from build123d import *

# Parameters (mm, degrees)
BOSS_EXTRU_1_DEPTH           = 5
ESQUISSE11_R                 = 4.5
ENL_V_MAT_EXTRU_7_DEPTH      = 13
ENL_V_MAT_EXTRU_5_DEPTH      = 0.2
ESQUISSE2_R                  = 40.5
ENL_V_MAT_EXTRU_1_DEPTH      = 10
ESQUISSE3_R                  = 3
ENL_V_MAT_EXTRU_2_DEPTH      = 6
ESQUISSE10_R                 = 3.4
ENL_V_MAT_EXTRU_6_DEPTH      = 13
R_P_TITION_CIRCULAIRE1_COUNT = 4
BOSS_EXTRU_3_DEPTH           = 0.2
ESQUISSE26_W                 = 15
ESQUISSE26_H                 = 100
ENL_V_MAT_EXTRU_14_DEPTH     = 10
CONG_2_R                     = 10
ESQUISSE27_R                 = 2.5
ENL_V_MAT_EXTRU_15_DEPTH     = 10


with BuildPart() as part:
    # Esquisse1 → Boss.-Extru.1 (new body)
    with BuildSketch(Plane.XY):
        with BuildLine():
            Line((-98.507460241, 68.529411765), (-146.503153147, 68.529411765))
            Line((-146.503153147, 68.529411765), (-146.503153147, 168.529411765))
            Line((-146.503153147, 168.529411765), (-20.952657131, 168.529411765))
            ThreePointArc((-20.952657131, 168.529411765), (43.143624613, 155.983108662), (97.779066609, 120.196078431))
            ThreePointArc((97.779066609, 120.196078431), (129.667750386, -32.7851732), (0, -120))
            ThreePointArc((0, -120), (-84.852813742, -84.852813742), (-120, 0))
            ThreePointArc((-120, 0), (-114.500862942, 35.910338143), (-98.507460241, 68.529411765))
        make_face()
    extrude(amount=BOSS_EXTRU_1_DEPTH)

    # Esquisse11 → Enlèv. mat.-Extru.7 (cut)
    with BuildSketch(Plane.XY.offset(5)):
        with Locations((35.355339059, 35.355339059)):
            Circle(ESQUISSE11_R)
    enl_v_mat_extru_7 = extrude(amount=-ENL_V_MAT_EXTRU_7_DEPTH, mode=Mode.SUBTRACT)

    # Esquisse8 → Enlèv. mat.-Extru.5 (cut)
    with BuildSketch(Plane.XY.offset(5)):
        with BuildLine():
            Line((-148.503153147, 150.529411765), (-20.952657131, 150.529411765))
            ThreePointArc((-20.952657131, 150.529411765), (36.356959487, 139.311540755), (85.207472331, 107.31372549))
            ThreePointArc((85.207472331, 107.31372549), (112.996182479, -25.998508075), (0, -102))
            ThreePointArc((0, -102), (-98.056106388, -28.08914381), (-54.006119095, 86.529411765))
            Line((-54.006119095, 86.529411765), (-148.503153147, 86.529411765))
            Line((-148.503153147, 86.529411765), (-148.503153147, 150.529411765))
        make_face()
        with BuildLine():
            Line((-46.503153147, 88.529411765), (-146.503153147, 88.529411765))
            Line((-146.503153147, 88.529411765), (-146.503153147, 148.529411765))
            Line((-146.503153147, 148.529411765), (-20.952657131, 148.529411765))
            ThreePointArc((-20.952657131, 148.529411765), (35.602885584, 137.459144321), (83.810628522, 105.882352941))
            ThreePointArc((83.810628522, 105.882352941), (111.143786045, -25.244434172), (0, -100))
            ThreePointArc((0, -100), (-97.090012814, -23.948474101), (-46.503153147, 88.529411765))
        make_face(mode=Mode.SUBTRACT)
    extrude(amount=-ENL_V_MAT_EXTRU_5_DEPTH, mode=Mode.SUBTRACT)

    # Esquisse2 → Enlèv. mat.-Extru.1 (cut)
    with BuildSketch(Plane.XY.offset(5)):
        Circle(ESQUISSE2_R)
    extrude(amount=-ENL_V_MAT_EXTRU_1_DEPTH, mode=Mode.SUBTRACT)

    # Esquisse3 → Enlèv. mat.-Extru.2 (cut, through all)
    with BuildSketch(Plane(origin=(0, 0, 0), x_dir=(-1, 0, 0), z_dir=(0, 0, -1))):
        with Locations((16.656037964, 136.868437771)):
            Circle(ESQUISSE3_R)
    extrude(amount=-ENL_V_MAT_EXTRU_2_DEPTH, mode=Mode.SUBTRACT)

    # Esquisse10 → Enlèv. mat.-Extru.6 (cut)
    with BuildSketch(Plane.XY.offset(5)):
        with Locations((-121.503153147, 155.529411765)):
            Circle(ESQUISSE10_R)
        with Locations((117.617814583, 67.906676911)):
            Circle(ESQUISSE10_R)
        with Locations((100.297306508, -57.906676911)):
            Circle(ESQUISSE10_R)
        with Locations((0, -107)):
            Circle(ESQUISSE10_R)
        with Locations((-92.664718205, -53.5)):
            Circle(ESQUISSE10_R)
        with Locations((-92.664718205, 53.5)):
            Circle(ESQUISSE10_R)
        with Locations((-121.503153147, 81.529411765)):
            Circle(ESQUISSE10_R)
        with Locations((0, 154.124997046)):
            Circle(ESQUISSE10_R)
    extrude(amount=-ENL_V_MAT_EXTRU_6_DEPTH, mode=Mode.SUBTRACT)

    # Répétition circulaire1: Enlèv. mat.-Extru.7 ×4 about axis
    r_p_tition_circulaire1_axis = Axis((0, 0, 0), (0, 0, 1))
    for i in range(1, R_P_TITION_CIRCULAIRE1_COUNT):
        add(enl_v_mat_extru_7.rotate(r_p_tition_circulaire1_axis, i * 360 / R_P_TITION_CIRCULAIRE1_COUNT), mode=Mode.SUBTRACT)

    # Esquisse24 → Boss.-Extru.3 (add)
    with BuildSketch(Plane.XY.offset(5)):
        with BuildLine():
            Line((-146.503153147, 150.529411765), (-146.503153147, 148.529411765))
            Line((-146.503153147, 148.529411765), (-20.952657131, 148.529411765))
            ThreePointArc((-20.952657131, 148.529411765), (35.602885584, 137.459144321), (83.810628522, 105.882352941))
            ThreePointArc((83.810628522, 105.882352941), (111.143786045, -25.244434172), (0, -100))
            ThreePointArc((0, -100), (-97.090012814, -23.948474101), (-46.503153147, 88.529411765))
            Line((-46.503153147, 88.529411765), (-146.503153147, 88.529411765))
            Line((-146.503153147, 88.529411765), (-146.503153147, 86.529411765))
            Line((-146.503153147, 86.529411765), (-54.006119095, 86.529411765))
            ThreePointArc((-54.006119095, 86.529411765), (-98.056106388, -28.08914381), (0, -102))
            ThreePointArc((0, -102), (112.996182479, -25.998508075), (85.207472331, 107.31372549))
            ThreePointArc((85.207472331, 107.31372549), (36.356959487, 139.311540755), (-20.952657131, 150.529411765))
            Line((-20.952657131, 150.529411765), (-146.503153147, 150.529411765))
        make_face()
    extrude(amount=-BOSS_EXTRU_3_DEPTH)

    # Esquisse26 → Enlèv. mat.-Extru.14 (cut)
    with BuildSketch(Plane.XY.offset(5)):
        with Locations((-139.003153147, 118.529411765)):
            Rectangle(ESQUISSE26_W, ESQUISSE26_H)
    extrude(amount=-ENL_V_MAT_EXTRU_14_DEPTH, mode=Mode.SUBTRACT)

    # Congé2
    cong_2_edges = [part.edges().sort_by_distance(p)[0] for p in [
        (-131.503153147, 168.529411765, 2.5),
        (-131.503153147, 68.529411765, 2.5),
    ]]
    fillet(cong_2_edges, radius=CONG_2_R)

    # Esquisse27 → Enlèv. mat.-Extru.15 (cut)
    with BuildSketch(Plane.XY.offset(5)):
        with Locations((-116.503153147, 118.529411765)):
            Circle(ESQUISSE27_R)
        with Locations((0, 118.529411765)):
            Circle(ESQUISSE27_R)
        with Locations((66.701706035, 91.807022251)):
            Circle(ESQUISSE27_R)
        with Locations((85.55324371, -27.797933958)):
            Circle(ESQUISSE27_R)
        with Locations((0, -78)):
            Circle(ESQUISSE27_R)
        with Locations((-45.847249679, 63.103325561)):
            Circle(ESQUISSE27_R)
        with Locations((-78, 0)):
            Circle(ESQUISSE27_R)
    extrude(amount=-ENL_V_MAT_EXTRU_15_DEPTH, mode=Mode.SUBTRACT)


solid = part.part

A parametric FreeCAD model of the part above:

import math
import FreeCAD as App
import Part
import Sketcher

V = App.Vector


def edges_at(feature, points):
    """Names of the edges that pass closest to the given points."""
    edges = feature.Shape.Edges
    near = lambda p: min(range(len(edges)), key=lambda i: edges[i].distToShape(Part.Vertex(*p))[0])
    return sorted({f"Edge{near(p) + 1}" for p in points})


def add_polygon(sketch, points):
    """Adds a closed chain of lines whose ends are joined by coincident constraints."""
    first, n = sketch.GeometryCount, len(points)
    for a, b in zip(points, points[1:] + points[:1]):
        sketch.addGeometry(Part.LineSegment(App.Vector(*a, 0), App.Vector(*b, 0)), False)
    for i in range(n):
        sketch.addConstraint(Sketcher.Constraint("Coincident", first + i, 2, first + (i + 1) % n, 1))

doc = App.newDocument("Part")
body = doc.addObject("PartDesign::Body", "Body")

# Sketch on XY plane
sketch1 = doc.addObject("Sketcher::SketchObject", "Sketch")
body.addObject(sketch1)
sketch1.AttachmentSupport = (doc.XY_Plane, [""])
sketch1.MapMode = "FlatFace"
sketch1.addGeometry([
    Part.LineSegment(V(-146.503153, 68.529412, 0), V(-98.50746, 68.529412, 0)),  # 0
    Part.ArcOfCircle(Part.Circle(V(0, 0, 0), V(0, 0, 1), 120), math.radians(145.174538), math.radians(180)),  # 1
    Part.ArcOfCircle(Part.Circle(V(0, 0, 0), V(0, 0, 1), 120), math.radians(-180), math.radians(-90)),  # 2
    Part.ArcOfCircle(Part.Circle(V(0, 20, 0), V(0, 0, 1), 140), math.radians(-90), math.radians(45.69947)),  # 3
    Part.ArcOfCircle(Part.Circle(V(-20.952657, -1.470588, 0), V(0, 0, 1), 170), math.radians(45.69947), math.radians(90)),  # 4
    Part.LineSegment(V(-20.952657, 168.529412, 0), V(-146.503153, 168.529412, 0)),  # 5
    Part.LineSegment(V(-146.503153, 168.529412, 0), V(-146.503153, 68.529412, 0)),  # 6
], False)
sketch1.addConstraint([
    Sketcher.Constraint("Coincident", 0, 2, 1, 1),
    Sketcher.Constraint("Tangent", 1, 2, 2, 1),
    Sketcher.Constraint("Tangent", 2, 2, 3, 1),
    Sketcher.Constraint("Tangent", 3, 2, 4, 1),
    Sketcher.Constraint("Tangent", 4, 2, 5, 1),
    Sketcher.Constraint("Coincident", 5, 2, 6, 1),
    Sketcher.Constraint("Coincident", 6, 2, 0, 1),
    Sketcher.Constraint("Horizontal", 0),
    Sketcher.Constraint("Horizontal", 5),
    Sketcher.Constraint("Vertical", 6),
    Sketcher.Constraint("Coincident", 1, 3, -1, 1),
    Sketcher.Constraint("Equal", 1, 2),
    Sketcher.Constraint("PointOnObject", 3, 3, -2),
    Sketcher.Constraint("PointOnObject", 1, 2, -1),
    Sketcher.Constraint("Radius", 1, 120.0),
    Sketcher.Constraint("Radius", 3, 140.0),
    Sketcher.Constraint("Radius", 4, 170.0),
    Sketcher.Constraint("DistanceY", 6, 2, 6, 1, 100.0),
    Sketcher.Constraint("DistanceX", 0, 1, 0, 2, 47.995693),
    Sketcher.Constraint("DistanceX", 5, 2, 5, 1, 125.550496),
])
pad1 = doc.addObject("PartDesign::Pad", "Pad")
body.addObject(pad1)
pad1.Profile = sketch1
pad1.Length = 5

# Sketch on XY plane
sketch2 = doc.addObject("Sketcher::SketchObject", "Sketch001")
body.addObject(sketch2)
sketch2.AttachmentSupport = (doc.XY_Plane, [""])
sketch2.MapMode = "FlatFace"
sketch2.AttachmentOffset = App.Placement(V(0, 0, 5), App.Rotation())
sketch2.addGeometry(Part.Circle(V(35.355339, 35.355339, 0), V(0, 0, 1), 4.5), False)
sketch2.addConstraint([
    Sketcher.Constraint("Diameter", 0, 9.0),
    Sketcher.Constraint("DistanceX", -1, 1, 0, 3, 35.355339),
    Sketcher.Constraint("DistanceY", -1, 1, 0, 3, 35.355339),
])
pocket1 = doc.addObject("PartDesign::Pocket", "Pocket")
body.addObject(pocket1)
pocket1.Profile = sketch2
pocket1.Length = 13

# Sketch on XY plane
sketch3 = doc.addObject("Sketcher::SketchObject", "Sketch002")
body.addObject(sketch3)
sketch3.AttachmentSupport = (doc.XY_Plane, [""])
sketch3.MapMode = "FlatFace"
sketch3.AttachmentOffset = App.Placement(V(0, 0, 5), App.Rotation())
sketch3.addGeometry([
    Part.LineSegment(V(-20.952657, 150.529412, 0), V(-148.503153, 150.529412, 0)),  # 0
    Part.LineSegment(V(-148.503153, 150.529412, 0), V(-148.503153, 86.529412, 0)),  # 1
    Part.LineSegment(V(-148.503153, 86.529412, 0), V(-54.006119, 86.529412, 0)),  # 2
    Part.ArcOfCircle(Part.Circle(V(0, 0, 0), V(0, 0, 1), 102), math.radians(121.96977), math.radians(270)),  # 3
    Part.ArcOfCircle(Part.Circle(V(0, 20, 0), V(0, 0, 1), 122), math.radians(-90), math.radians(45.69947)),  # 4
    Part.ArcOfCircle(Part.Circle(V(-20.952657, -1.470588, 0), V(0, 0, 1), 152), math.radians(45.69947), math.radians(90)),  # 5
    Part.LineSegment(V(-46.503153, 88.529412, 0), V(-146.503153, 88.529412, 0)),  # 6
    Part.LineSegment(V(-146.503153, 88.529412, 0), V(-146.503153, 148.529412, 0)),  # 7
    Part.LineSegment(V(-146.503153, 148.529412, 0), V(-20.952657, 148.529412, 0)),  # 8
    Part.ArcOfCircle(Part.Circle(V(-20.952657, -1.470588, 0), V(0, 0, 1), 150), math.radians(45.69947), math.radians(90)),  # 9
    Part.ArcOfCircle(Part.Circle(V(0, 20, 0), V(0, 0, 1), 120), math.radians(-90), math.radians(45.69947)),  # 10
    Part.ArcOfCircle(Part.Circle(V(0, 0, 0), V(0, 0, 1), 100), math.radians(117.712263), math.radians(270)),  # 11
], False)
sketch3.addConstraint([
    Sketcher.Constraint("Coincident", 0, 2, 1, 1),
    Sketcher.Constraint("Coincident", 1, 2, 2, 1),
    Sketcher.Constraint("Coincident", 2, 2, 3, 1),
    Sketcher.Constraint("Tangent", 3, 2, 4, 1),
    Sketcher.Constraint("Tangent", 4, 2, 5, 1),
    Sketcher.Constraint("Tangent", 5, 2, 0, 1),
    Sketcher.Constraint("Coincident", 6, 2, 7, 1),
    Sketcher.Constraint("Coincident", 7, 2, 8, 1),
    Sketcher.Constraint("Tangent", 8, 2, 9, 2),
    Sketcher.Constraint("Tangent", 9, 1, 10, 2),
    Sketcher.Constraint("Tangent", 10, 1, 11, 2),
    Sketcher.Constraint("Coincident", 11, 1, 6, 1),
    Sketcher.Constraint("Horizontal", 0),
    Sketcher.Constraint("Vertical", 1),
    Sketcher.Constraint("Horizontal", 2),
    Sketcher.Constraint("Horizontal", 6),
    Sketcher.Constraint("Vertical", 7),
    Sketcher.Constraint("Horizontal", 8),
    Sketcher.Constraint("Coincident", 3, 3, -1, 1),
    Sketcher.Constraint("Coincident", 11, 3, -1, 1),
    Sketcher.Constraint("Coincident", 9, 3, 5, 3),
    Sketcher.Constraint("Coincident", 10, 3, 4, 3),
    Sketcher.Constraint("PointOnObject", 4, 3, -2),
    Sketcher.Constraint("Radius", 3, 102.0),
    Sketcher.Constraint("Radius", 4, 122.0),
    Sketcher.Constraint("Radius", 5, 152.0),
    Sketcher.Constraint("Radius", 9, 150.0),
    Sketcher.Constraint("DistanceX", 6, 2, 6, 1, 100.0),
    Sketcher.Constraint("DistanceY", 1, 2, 1, 1, 64.0),
    Sketcher.Constraint("DistanceY", 7, 1, 7, 2, 60.0),
    Sketcher.Constraint("DistanceX", 1, 2, 6, 2, 2.0),
    Sketcher.Constraint("DistanceX", 0, 2, 0, 1, 127.550496),
])
pocket2 = doc.addObject("PartDesign::Pocket", "Pocket001")
body.addObject(pocket2)
pocket2.Profile = sketch3
pocket2.Length = 0.2

# Sketch on XY plane
sketch4 = doc.addObject("Sketcher::SketchObject", "Sketch003")
body.addObject(sketch4)
sketch4.AttachmentSupport = (doc.XY_Plane, [""])
sketch4.MapMode = "FlatFace"
sketch4.AttachmentOffset = App.Placement(V(0, 0, 5), App.Rotation())
sketch4.addGeometry(Part.Circle(V(0, 0, 0), V(0, 0, 1), 40.5), False)
sketch4.addConstraint([
    Sketcher.Constraint("Coincident", 0, 3, -1, 1),
    Sketcher.Constraint("Diameter", 0, 81.0),
])
pocket3 = doc.addObject("PartDesign::Pocket", "Pocket002")
body.addObject(pocket3)
pocket3.Profile = sketch4
pocket3.Length = 10

# Sketch on XY plane
sketch5 = doc.addObject("Sketcher::SketchObject", "Sketch004")
body.addObject(sketch5)
sketch5.AttachmentSupport = (doc.XY_Plane, [""])
sketch5.MapMode = "FlatFace"
sketch5.addGeometry(Part.Circle(V(-16.656038, 136.868438, 0), V(0, 0, 1), 3), False)
sketch5.addConstraint([
    Sketcher.Constraint("Diameter", 0, 6.0),
    Sketcher.Constraint("DistanceX", 0, 3, -1, 1, 16.656038),
    Sketcher.Constraint("DistanceY", -1, 1, 0, 3, 136.868438),
])
pocket4 = doc.addObject("PartDesign::Pocket", "Pocket003")
body.addObject(pocket4)
pocket4.Profile = sketch5
pocket4.Type = "ThroughAll"
pocket4.Reversed = True

# Sketch on XY plane
sketch6 = doc.addObject("Sketcher::SketchObject", "Sketch005")
body.addObject(sketch6)
sketch6.AttachmentSupport = (doc.XY_Plane, [""])
sketch6.MapMode = "FlatFace"
sketch6.AttachmentOffset = App.Placement(V(0, 0, 5), App.Rotation())
sketch6.addGeometry([
    Part.Circle(V(-121.503153, 155.529412, 0), V(0, 0, 1), 3.4),  # 0
    Part.Circle(V(117.617815, 67.906677, 0), V(0, 0, 1), 3.4),  # 1
    Part.Circle(V(100.297307, -57.906677, 0), V(0, 0, 1), 3.4),  # 2
    Part.Circle(V(0, -107, 0), V(0, 0, 1), 3.4),  # 3
    Part.Circle(V(-92.664718, -53.5, 0), V(0, 0, 1), 3.4),  # 4
    Part.Circle(V(-92.664718, 53.5, 0), V(0, 0, 1), 3.4),  # 5
    Part.Circle(V(-121.503153, 81.529412, 0), V(0, 0, 1), 3.4),  # 6
    Part.Circle(V(0, 154.124997, 0), V(0, 0, 1), 3.4),  # 7
], False)
sketch6.addConstraint([
    Sketcher.Constraint("Equal", 0, 1),
    Sketcher.Constraint("Equal", 1, 2),
    Sketcher.Constraint("Equal", 2, 3),
    Sketcher.Constraint("Equal", 3, 4),
    Sketcher.Constraint("Equal", 4, 5),
    Sketcher.Constraint("Equal", 5, 6),
    Sketcher.Constraint("Equal", 6, 7),
    Sketcher.Constraint("Symmetric", 4, 3, 5, 3, -1),
    Sketcher.Constraint("PointOnObject", 3, 3, -2),
    Sketcher.Constraint("PointOnObject", 7, 3, -2),
    Sketcher.Constraint("Vertical", 0, 3, 6, 3),
    Sketcher.Constraint("Diameter", 0, 6.8),
    Sketcher.Constraint("DistanceY", 3, 3, -1, 1, 107.0),
    Sketcher.Constraint("DistanceY", 4, 3, 5, 3, 107.0),
    Sketcher.Constraint("DistanceY", 6, 3, 0, 3, 74.0),
    Sketcher.Constraint("DistanceY", -1, 1, 0, 3, 155.529412),
    Sketcher.Constraint("DistanceX", 4, 3, -1, 1, 92.664718),
    Sketcher.Constraint("DistanceX", 2, 3, 1, 3, 17.320508),
    Sketcher.Constraint("DistanceX", 0, 3, 2, 3, 221.80046),
    Sketcher.Constraint("DistanceY", 2, 3, 0, 3, 213.436089),
    Sketcher.Constraint("DistanceY", 1, 3, 7, 3, 86.21832),
    Sketcher.Constraint("DistanceX", 0, 3, -1, 1, 121.503153),
    Sketcher.Constraint("DistanceY", -1, 1, 1, 3, 67.906677),
])
pocket5 = doc.addObject("PartDesign::Pocket", "Pocket004")
body.addObject(pocket5)
pocket5.Profile = sketch6
pocket5.Length = 13
doc.recompute()

polarpattern = doc.addObject("PartDesign::PolarPattern", "PolarPattern")
body.addObject(polarpattern)
polarpattern.Originals = [pocket1]
polarpattern.Axis = (doc.Z_Axis, [""])
polarpattern.Angle = 360
polarpattern.Occurrences = 4
body.Tip = polarpattern

# Sketch on XY plane
sketch7 = doc.addObject("Sketcher::SketchObject", "Sketch006")
body.addObject(sketch7)
sketch7.AttachmentSupport = (doc.XY_Plane, [""])
sketch7.MapMode = "FlatFace"
sketch7.AttachmentOffset = App.Placement(V(0, 0, 5), App.Rotation())
sketch7.addGeometry([
    Part.LineSegment(V(-146.503153, 150.529412, 0), V(-146.503153, 148.529412, 0)),  # 0
    Part.LineSegment(V(-146.503153, 148.529412, 0), V(-20.952657, 148.529412, 0)),  # 1
    Part.ArcOfCircle(Part.Circle(V(-20.952657, -1.470588, 0), V(0, 0, 1), 150), math.radians(45.69947), math.radians(90)),  # 2
    Part.ArcOfCircle(Part.Circle(V(0, 20, 0), V(0, 0, 1), 120), math.radians(-90), math.radians(45.69947)),  # 3
    Part.ArcOfCircle(Part.Circle(V(0, 0, 0), V(0, 0, 1), 100), math.radians(117.712263), math.radians(270)),  # 4
    Part.LineSegment(V(-46.503153, 88.529412, 0), V(-146.503153, 88.529412, 0)),  # 5
    Part.LineSegment(V(-146.503153, 88.529412, 0), V(-146.503153, 86.529412, 0)),  # 6
    Part.LineSegment(V(-146.503153, 86.529412, 0), V(-54.006119, 86.529412, 0)),  # 7
    Part.ArcOfCircle(Part.Circle(V(0, 0, 0), V(0, 0, 1), 102), math.radians(121.96977), math.radians(270)),  # 8
    Part.ArcOfCircle(Part.Circle(V(0, 20, 0), V(0, 0, 1), 122), math.radians(-90), math.radians(45.69947)),  # 9
    Part.ArcOfCircle(Part.Circle(V(-20.952657, -1.470588, 0), V(0, 0, 1), 152), math.radians(45.69947), math.radians(90)),  # 10
    Part.LineSegment(V(-20.952657, 150.529412, 0), V(-146.503153, 150.529412, 0)),  # 11
], False)
sketch7.addConstraint([
    Sketcher.Constraint("Coincident", 0, 2, 1, 1),
    Sketcher.Constraint("Tangent", 1, 2, 2, 2),
    Sketcher.Constraint("Tangent", 2, 1, 3, 2),
    Sketcher.Constraint("Tangent", 3, 1, 4, 2),
    Sketcher.Constraint("Coincident", 4, 1, 5, 1),
    Sketcher.Constraint("Coincident", 5, 2, 6, 1),
    Sketcher.Constraint("Coincident", 6, 2, 7, 1),
    Sketcher.Constraint("Coincident", 7, 2, 8, 1),
    Sketcher.Constraint("Tangent", 8, 2, 9, 1),
    Sketcher.Constraint("Tangent", 9, 2, 10, 1),
    Sketcher.Constraint("Tangent", 10, 2, 11, 1),
    Sketcher.Constraint("Coincident", 11, 2, 0, 1),
    Sketcher.Constraint("Vertical", 0),
    Sketcher.Constraint("Horizontal", 1),
    Sketcher.Constraint("Horizontal", 5),
    Sketcher.Constraint("Vertical", 6),
    Sketcher.Constraint("Horizontal", 7),
    Sketcher.Constraint("Horizontal", 11),
    Sketcher.Constraint("Coincident", 4, 3, -1, 1),
    Sketcher.Constraint("Coincident", 8, 3, -1, 1),
    Sketcher.Constraint("Coincident", 9, 3, 3, 3),
    Sketcher.Constraint("Coincident", 10, 3, 2, 3),
    Sketcher.Constraint("PointOnObject", 3, 3, -2),
    Sketcher.Constraint("Vertical", 0, 2, 5, 2),
    Sketcher.Constraint("Equal", 0, 6),
    Sketcher.Constraint("Radius", 2, 150.0),
    Sketcher.Constraint("Radius", 3, 120.0),
    Sketcher.Constraint("Radius", 4, 100.0),
    Sketcher.Constraint("Radius", 8, 102.0),
    Sketcher.Constraint("DistanceX", 5, 2, 5, 1, 100.0),
    Sketcher.Constraint("DistanceY", 4, 1, 1, 2, 60.0),
    Sketcher.Constraint("DistanceX", 1, 1, 1, 2, 125.550496),
])
pad2 = doc.addObject("PartDesign::Pad", "Pad001")
body.addObject(pad2)
pad2.Profile = sketch7
pad2.Length = 0.2
pad2.Reversed = True

# Sketch on XY plane
sketch8 = doc.addObject("Sketcher::SketchObject", "Sketch007")
body.addObject(sketch8)
sketch8.AttachmentSupport = (doc.XY_Plane, [""])
sketch8.MapMode = "FlatFace"
sketch8.AttachmentOffset = App.Placement(V(0, 0, 5), App.Rotation())
add_polygon(sketch8, [(-146.503153, 168.529412), (-146.503153, 68.529412), (-131.503153, 68.529412), (-131.503153, 168.529412)])  # lines 0-3
sketch8.addConstraint([
    Sketcher.Constraint("Vertical", 0),
    Sketcher.Constraint("Horizontal", 1),
    Sketcher.Constraint("Vertical", 2),
    Sketcher.Constraint("Horizontal", 3),
    Sketcher.Constraint("DistanceX", 1, 1, 1, 2, 15.0),
    Sketcher.Constraint("DistanceY", 0, 2, 0, 1, 100.0),
    Sketcher.Constraint("DistanceY", -1, 1, 0, 2, 68.529412),
    Sketcher.Constraint("DistanceX", 0, 2, -1, 1, 146.503153),
])
pocket6 = doc.addObject("PartDesign::Pocket", "Pocket005")
body.addObject(pocket6)
pocket6.Profile = sketch8
pocket6.Length = 10
doc.recompute()

fillet = doc.addObject("PartDesign::Fillet", "Fillet")
body.addObject(fillet)
fillet.Base = (pocket6, edges_at(pocket6, [(-131.503, 168.529, 2.5), (-131.503, 68.529, 2.5)]))
fillet.Radius = 10

# Sketch on XY plane
sketch9 = doc.addObject("Sketcher::SketchObject", "Sketch008")
body.addObject(sketch9)
sketch9.AttachmentSupport = (doc.XY_Plane, [""])
sketch9.MapMode = "FlatFace"
sketch9.AttachmentOffset = App.Placement(V(0, 0, 5), App.Rotation())
sketch9.addGeometry([
    Part.Circle(V(-116.503153, 118.529412, 0), V(0, 0, 1), 2.5),  # 0
    Part.Circle(V(0, 118.529412, 0), V(0, 0, 1), 2.5),  # 1
    Part.Circle(V(66.701706, 91.807022, 0), V(0, 0, 1), 2.5),  # 2
    Part.Circle(V(85.553244, -27.797934, 0), V(0, 0, 1), 2.5),  # 3
    Part.Circle(V(0, -78, 0), V(0, 0, 1), 2.5),  # 4
    Part.Circle(V(-45.84725, 63.103326, 0), V(0, 0, 1), 2.5),  # 5
    Part.Circle(V(-78, 0, 0), V(0, 0, 1), 2.5),  # 6
], False)
sketch9.addConstraint([
    Sketcher.Constraint("Equal", 0, 1),
    Sketcher.Constraint("Equal", 1, 2),
    Sketcher.Constraint("Equal", 2, 3),
    Sketcher.Constraint("Equal", 3, 4),
    Sketcher.Constraint("Equal", 4, 5),
    Sketcher.Constraint("Equal", 5, 6),
    Sketcher.Constraint("PointOnObject", 1, 3, -2),
    Sketcher.Constraint("PointOnObject", 4, 3, -2),
    Sketcher.Constraint("PointOnObject", 6, 3, -1),
    Sketcher.Constraint("Horizontal", 0, 3, 1, 3),
    Sketcher.Constraint("Diameter", 0, 5.0),
    Sketcher.Constraint("DistanceY", 4, 3, -1, 1, 78.0),
    Sketcher.Constraint("DistanceX", 6, 3, -1, 1, 78.0),
    Sketcher.Constraint("DistanceY", -1, 1, 0, 3, 118.529412),
    Sketcher.Constraint("DistanceX", 5, 3, -1, 1, 45.84725),
    Sketcher.Constraint("DistanceY", 2, 3, 1, 3, 26.72239),
    Sketcher.Constraint("DistanceX", 0, 3, 2, 3, 183.204859),
    Sketcher.Constraint("DistanceY", 3, 3, 5, 3, 90.90126),
    Sketcher.Constraint("DistanceX", 0, 3, -1, 1, 116.503153),
    Sketcher.Constraint("DistanceX", -1, 1, 3, 3, 85.553244),
    Sketcher.Constraint("DistanceY", 3, 3, -1, 1, 27.797934),
])
pocket7 = doc.addObject("PartDesign::Pocket", "Pocket006")
body.addObject(pocket7)
pocket7.Profile = sketch9
pocket7.Length = 10

doc.recompute()
